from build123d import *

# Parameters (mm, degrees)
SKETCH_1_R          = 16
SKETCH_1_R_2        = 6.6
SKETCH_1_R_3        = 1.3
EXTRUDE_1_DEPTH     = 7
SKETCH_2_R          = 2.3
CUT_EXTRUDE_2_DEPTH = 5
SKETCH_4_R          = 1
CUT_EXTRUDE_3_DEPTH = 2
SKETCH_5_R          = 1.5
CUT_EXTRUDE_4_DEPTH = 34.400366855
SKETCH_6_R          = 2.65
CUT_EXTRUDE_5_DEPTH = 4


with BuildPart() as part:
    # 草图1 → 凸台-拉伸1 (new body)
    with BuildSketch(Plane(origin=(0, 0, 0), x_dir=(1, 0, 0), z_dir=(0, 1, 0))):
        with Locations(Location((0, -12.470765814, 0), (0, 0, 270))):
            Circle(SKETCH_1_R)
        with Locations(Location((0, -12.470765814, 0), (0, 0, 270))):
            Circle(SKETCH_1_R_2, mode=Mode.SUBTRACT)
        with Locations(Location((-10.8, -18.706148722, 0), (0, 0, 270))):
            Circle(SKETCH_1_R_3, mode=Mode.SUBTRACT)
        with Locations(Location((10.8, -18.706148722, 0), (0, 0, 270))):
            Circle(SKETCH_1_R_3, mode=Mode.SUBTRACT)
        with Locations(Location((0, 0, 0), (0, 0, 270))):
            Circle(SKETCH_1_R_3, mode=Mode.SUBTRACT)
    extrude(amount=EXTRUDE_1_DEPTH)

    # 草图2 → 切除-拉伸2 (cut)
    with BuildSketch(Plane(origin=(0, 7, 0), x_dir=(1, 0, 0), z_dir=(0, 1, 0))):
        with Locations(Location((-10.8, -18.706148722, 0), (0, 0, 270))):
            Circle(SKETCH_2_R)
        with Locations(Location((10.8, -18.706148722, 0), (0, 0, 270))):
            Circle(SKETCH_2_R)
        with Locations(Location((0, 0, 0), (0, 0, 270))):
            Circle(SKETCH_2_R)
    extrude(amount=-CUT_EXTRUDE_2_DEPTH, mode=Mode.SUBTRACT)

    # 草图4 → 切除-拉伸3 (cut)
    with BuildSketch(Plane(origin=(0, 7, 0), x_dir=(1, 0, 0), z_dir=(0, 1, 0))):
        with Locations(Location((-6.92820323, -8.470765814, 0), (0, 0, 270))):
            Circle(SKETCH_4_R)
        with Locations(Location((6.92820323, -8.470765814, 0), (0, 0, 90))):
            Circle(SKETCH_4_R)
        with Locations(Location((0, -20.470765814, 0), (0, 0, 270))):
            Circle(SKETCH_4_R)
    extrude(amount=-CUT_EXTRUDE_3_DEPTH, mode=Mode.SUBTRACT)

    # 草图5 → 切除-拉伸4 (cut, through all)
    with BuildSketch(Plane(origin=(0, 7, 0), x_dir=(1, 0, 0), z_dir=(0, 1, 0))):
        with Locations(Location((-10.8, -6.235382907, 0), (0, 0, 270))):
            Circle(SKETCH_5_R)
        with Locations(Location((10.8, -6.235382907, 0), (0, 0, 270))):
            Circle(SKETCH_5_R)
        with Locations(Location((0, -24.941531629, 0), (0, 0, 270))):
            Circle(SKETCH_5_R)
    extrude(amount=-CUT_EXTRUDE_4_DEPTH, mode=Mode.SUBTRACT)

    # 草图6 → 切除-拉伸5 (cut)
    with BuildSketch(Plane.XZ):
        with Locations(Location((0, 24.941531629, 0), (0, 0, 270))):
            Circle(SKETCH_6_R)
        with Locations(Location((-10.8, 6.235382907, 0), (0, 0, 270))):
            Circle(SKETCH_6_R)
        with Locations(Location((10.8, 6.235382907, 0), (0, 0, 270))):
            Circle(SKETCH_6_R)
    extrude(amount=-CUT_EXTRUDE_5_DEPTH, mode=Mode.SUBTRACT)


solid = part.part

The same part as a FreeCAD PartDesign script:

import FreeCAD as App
import Part
import Sketcher

V = App.Vector

doc = App.newDocument("Part")
body = doc.addObject("PartDesign::Body", "Body")

# Sketch on XZ plane
sketch1 = body.newObject("Sketcher::SketchObject", "Sketch")
sketch1.AttachmentSupport = (doc.getObject("XZ_Plane"), [""])
sketch1.MapMode = "FlatFace"
sketch1.addGeometry(Part.Circle(V(0, 12.5, 0), V(0, 0, 1), 16), False)
sketch1.addGeometry(Part.Circle(V(0, 0, 0), V(0, 0, 1), 1.3), False)
sketch1.addGeometry(Part.Circle(V(-10.8, 18.7, 0), V(0, 0, 1), 1.3), False)
sketch1.addGeometry(Part.Circle(V(0, 12.5, 0), V(0, 0, 1), 6.6), False)
sketch1.addGeometry(Part.Circle(V(10.8, 18.7, 0), V(0, 0, 1), 1.3), False)
sketch1.addConstraint(Sketcher.Constraint("Coincident", 1, 3, -1, 1))
sketch1.addConstraint(Sketcher.Constraint("Coincident", 3, 3, 0, 3))
sketch1.addConstraint(Sketcher.Constraint("Equal", 1, 2))
sketch1.addConstraint(Sketcher.Constraint("Equal", 2, 4))
sketch1.addConstraint(Sketcher.Constraint("Symmetric", 2, 3, 4, 3, -2))
sketch1.addConstraint(Sketcher.Constraint("PointOnObject", 0, 3, -2))
sketch1.addConstraint(Sketcher.Constraint("Diameter", 0, 32.0))
sketch1.addConstraint(Sketcher.Constraint("Diameter", 1, 2.6))
sketch1.addConstraint(Sketcher.Constraint("Diameter", 3, 13.2))
sketch1.addConstraint(Sketcher.Constraint("DistanceX", 2, 3, -1, 1, 10.8))
sketch1.addConstraint(Sketcher.Constraint("DistanceY", -1, 1, 2, 3, 18.706149))
sketch1.addConstraint(Sketcher.Constraint("DistanceY", -1, 1, 0, 3, 12.470766))
pad1 = body.newObject("PartDesign::Pad", "Pad")
pad1.Profile = sketch1
pad1.Length = 7
pad1.Reversed = True

# Sketch on XZ plane
sketch2 = body.newObject("Sketcher::SketchObject", "Sketch001")
sketch2.AttachmentSupport = (doc.getObject("XZ_Plane"), [""])
sketch2.MapMode = "FlatFace"
sketch2.AttachmentOffset = App.Placement(V(0, 0, -7), App.Rotation())
sketch2.addGeometry(Part.Circle(V(-10.8, 18.7, 0), V(0, 0, 1), 2.3), False)
sketch2.addGeometry(Part.Circle(V(10.8, 18.7, 0), V(0, 0, 1), 2.3), False)
sketch2.addGeometry(Part.Circle(V(0, 0, 0), V(0, 0, 1), 2.3), False)
sketch2.addConstraint(Sketcher.Constraint("Coincident", 2, 3, -1, 1))
sketch2.addConstraint(Sketcher.Constraint("Equal", 0, 1))
sketch2.addConstraint(Sketcher.Constraint("Equal", 1, 2))
sketch2.addConstraint(Sketcher.Constraint("Symmetric", 0, 3, 1, 3, -2))
sketch2.addConstraint(Sketcher.Constraint("Diameter", 0, 4.6))
sketch2.addConstraint(Sketcher.Constraint("DistanceX", 0, 3, -1, 1, 10.8))
sketch2.addConstraint(Sketcher.Constraint("DistanceY", -1, 1, 0, 3, 18.706149))
pocket1 = body.newObject("PartDesign::Pocket", "Pocket")
pocket1.Profile = sketch2
pocket1.Length = 5
pocket1.Reversed = True

# Sketch on XZ plane
sketch3 = body.newObject("Sketcher::SketchObject", "Sketch002")
sketch3.AttachmentSupport = (doc.getObject("XZ_Plane"), [""])
sketch3.MapMode = "FlatFace"
sketch3.AttachmentOffset = App.Placement(V(0, 0, -7), App.Rotation())
sketch3.addGeometry(Part.Circle(V(-6.9, 8.5, 0), V(0, 0, 1), 1), False)
sketch3.addGeometry(Part.Circle(V(6.9, 8.5, 0), V(0, 0, 1), 1), False)
sketch3.addGeometry(Part.Circle(V(0, 20.5, 0), V(0, 0, 1), 1), False)
sketch3.addConstraint(Sketcher.Constraint("Equal", 0, 1))
sketch3.addConstraint(Sketcher.Constraint("Equal", 1, 2))
sketch3.addConstraint(Sketcher.Constraint("Symmetric", 0, 3, 1, 3, -2))
sketch3.addConstraint(Sketcher.Constraint("PointOnObject", 2, 3, -2))
sketch3.addConstraint(Sketcher.Constraint("Diameter", 0, 2.0))
sketch3.addConstraint(Sketcher.Constraint("DistanceY", 0, 3, 2, 3, 12.0))
sketch3.addConstraint(Sketcher.Constraint("DistanceX", 0, 3, -1, 1, 6.928203))
sketch3.addConstraint(Sketcher.Constraint("DistanceY", -1, 1, 0, 3, 8.470766))
pocket2 = body.newObject("PartDesign::Pocket", "Pocket001")
pocket2.Profile = sketch3
pocket2.Length = 2
pocket2.Reversed = True

# Sketch on XZ plane
sketch4 = body.newObject("Sketcher::SketchObject", "Sketch003")
sketch4.AttachmentSupport = (doc.getObject("XZ_Plane"), [""])
sketch4.MapMode = "FlatFace"
sketch4.AttachmentOffset = App.Placement(V(0, 0, -7), App.Rotation())
sketch4.addGeometry(Part.Circle(V(-10.8, 6.2, 0), V(0, 0, 1), 1.5), False)
sketch4.addGeometry(Part.Circle(V(10.8, 6.2, 0), V(0, 0, 1), 1.5), False)
sketch4.addGeometry(Part.Circle(V(0, 24.9, 0), V(0, 0, 1), 1.5), False)
sketch4.addConstraint(Sketcher.Constraint("Equal", 0, 1))
sketch4.addConstraint(Sketcher.Constraint("Equal", 1, 2))
sketch4.addConstraint(Sketcher.Constraint("Symmetric", 0, 3, 1, 3, -2))
sketch4.addConstraint(Sketcher.Constraint("PointOnObject", 2, 3, -2))
sketch4.addConstraint(Sketcher.Constraint("Diameter", 0, 3.0))
sketch4.addConstraint(Sketcher.Constraint("DistanceX", 0, 3, -1, 1, 10.8))
sketch4.addConstraint(Sketcher.Constraint("DistanceY", -1, 1, 2, 3, 24.941532))
sketch4.addConstraint(Sketcher.Constraint("DistanceY", 0, 3, 2, 3, 18.706149))
pocket3 = body.newObject("PartDesign::Pocket", "Pocket002")
pocket3.Profile = sketch4
pocket3.Type = "ThroughAll"
pocket3.Reversed = True

# Sketch on XZ plane
sketch5 = body.newObject("Sketcher::SketchObject", "Sketch004")
sketch5.AttachmentSupport = (doc.getObject("XZ_Plane"), [""])
sketch5.MapMode = "FlatFace"
sketch5.addGeometry(Part.Circle(V(0, 24.9, 0), V(0, 0, 1), 2.6), False)
sketch5.addGeometry(Part.Circle(V(-10.8, 6.2, 0), V(0, 0, 1), 2.6), False)
sketch5.addGeometry(Part.Circle(V(10.8, 6.2, 0), V(0, 0, 1), 2.6), False)
sketch5.addConstraint(Sketcher.Constraint("Equal", 0, 1))
sketch5.addConstraint(Sketcher.Constraint("Equal", 1, 2))
sketch5.addConstraint(Sketcher.Constraint("Symmetric", 1, 3, 2, 3, -2))
sketch5.addConstraint(Sketcher.Constraint("PointOnObject", 0, 3, -2))
sketch5.addConstraint(Sketcher.Constraint("Diameter", 0, 5.3))
sketch5.addConstraint(Sketcher.Constraint("DistanceX", 1, 3, -1, 1, 10.8))
sketch5.addConstraint(Sketcher.Constraint("DistanceY", -1, 1, 0, 3, 24.941532))
sketch5.addConstraint(Sketcher.Constraint("DistanceY", 1, 3, 0, 3, 18.706149))
pocket4 = body.newObject("PartDesign::Pocket", "Pocket003")
pocket4.Profile = sketch5
pocket4.Length = 4

doc.recompute()
